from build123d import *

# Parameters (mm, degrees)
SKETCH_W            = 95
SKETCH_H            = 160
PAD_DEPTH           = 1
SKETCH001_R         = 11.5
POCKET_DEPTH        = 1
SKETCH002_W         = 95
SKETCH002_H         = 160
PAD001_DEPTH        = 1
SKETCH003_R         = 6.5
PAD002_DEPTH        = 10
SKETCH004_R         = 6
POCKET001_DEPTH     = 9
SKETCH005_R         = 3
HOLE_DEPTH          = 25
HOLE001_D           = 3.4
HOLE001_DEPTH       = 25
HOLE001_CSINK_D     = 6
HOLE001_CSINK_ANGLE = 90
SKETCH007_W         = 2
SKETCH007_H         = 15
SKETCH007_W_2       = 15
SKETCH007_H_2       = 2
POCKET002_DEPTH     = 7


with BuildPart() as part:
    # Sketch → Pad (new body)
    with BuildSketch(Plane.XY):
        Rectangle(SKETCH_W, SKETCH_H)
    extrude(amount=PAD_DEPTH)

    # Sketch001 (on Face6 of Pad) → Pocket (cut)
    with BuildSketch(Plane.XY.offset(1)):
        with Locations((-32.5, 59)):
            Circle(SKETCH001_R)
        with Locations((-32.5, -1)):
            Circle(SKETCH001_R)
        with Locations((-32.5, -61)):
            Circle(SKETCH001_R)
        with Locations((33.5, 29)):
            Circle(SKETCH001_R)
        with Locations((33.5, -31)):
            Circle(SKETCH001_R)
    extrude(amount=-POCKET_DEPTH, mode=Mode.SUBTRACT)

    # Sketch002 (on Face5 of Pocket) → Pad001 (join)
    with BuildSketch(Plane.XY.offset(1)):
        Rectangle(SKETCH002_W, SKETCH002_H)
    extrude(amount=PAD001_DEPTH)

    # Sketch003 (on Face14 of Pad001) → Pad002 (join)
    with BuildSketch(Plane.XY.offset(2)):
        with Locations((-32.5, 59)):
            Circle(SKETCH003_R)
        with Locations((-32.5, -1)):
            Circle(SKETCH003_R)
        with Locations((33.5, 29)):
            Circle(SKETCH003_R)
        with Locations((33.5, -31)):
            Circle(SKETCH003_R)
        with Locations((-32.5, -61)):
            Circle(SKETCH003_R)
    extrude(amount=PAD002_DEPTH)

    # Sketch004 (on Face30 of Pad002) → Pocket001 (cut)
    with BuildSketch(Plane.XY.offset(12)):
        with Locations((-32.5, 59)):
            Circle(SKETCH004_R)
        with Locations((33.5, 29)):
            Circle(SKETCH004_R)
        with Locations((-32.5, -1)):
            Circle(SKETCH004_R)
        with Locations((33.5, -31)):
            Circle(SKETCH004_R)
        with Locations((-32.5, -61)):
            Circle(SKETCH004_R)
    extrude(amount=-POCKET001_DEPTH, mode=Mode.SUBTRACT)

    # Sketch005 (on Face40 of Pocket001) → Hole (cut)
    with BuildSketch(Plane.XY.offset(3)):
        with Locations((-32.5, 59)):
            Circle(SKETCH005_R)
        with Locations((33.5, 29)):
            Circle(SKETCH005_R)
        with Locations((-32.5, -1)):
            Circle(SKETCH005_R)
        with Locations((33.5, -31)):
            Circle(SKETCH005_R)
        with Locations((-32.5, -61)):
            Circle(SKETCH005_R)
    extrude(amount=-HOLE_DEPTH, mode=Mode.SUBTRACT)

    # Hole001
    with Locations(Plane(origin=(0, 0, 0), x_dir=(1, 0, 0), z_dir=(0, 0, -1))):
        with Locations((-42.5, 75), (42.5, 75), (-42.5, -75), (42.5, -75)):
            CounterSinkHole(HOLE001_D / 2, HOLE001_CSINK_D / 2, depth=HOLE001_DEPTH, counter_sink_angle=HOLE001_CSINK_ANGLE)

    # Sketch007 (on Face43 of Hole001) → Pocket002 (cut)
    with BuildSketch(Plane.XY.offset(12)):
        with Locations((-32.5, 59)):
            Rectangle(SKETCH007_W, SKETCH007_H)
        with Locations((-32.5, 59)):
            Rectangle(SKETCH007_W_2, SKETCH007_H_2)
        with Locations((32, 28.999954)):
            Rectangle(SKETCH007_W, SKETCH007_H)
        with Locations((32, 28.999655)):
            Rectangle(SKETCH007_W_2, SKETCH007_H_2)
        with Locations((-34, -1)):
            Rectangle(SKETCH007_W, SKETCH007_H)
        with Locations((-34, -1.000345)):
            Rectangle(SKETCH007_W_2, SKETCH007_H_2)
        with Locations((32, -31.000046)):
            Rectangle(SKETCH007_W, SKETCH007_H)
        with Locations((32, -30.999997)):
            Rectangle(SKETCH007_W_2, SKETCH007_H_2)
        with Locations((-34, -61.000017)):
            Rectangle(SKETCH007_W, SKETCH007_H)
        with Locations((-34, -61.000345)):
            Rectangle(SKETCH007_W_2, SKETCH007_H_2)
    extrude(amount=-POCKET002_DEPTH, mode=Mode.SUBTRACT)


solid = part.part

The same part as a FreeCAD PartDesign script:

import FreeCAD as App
import Part
import Sketcher
Q = App.Units.Quantity

doc = App.newDocument("Part")
body = doc.addObject("PartDesign::Body", "Body")

sketch1 = body.newObject("Sketcher::SketchObject", "Sketch")
sketch1.AttachmentSupport = (doc.getObject("XY_Plane"), [""])
sketch1.MapMode = "FlatFace"
sketch1.addGeometry(Part.LineSegment(App.Vector(-48, 80, 0), App.Vector(-48, -80, 0)), False)
sketch1.addGeometry(Part.LineSegment(App.Vector(-48, -80, 0), App.Vector(48, -80, 0)), False)
sketch1.addGeometry(Part.LineSegment(App.Vector(48, -80, 0), App.Vector(48, 80, 0)), False)
sketch1.addGeometry(Part.LineSegment(App.Vector(48, 80, 0), App.Vector(-48, 80, 0)), False)
sketch1.addConstraint(Sketcher.Constraint("Coincident", 0, 2, 1, 1))
sketch1.addConstraint(Sketcher.Constraint("Coincident", 1, 2, 2, 1))
sketch1.addConstraint(Sketcher.Constraint("Coincident", 2, 2, 3, 1))
sketch1.addConstraint(Sketcher.Constraint("Coincident", 3, 2, 0, 1))
sketch1.addConstraint(Sketcher.Constraint("Vertical", 0))
sketch1.addConstraint(Sketcher.Constraint("Horizontal", 1))
sketch1.addConstraint(Sketcher.Constraint("Vertical", 2))
sketch1.addConstraint(Sketcher.Constraint("Horizontal", 3))
sketch1.addConstraint(Sketcher.Constraint("Symmetric", 0, 2, 2, 2, -1, 1))
sketch1.addConstraint(Sketcher.Constraint("DistanceX", 1, 1, 1, 2, Q("95 mm")))
sketch1.addConstraint(Sketcher.Constraint("DistanceY", 0, 2, 0, 1, Q("160 mm")))
pad1 = body.newObject("PartDesign::Pad", "Pad")
pad1.Profile = sketch1
pad1.Length = 1

sketch2 = body.newObject("Sketcher::SketchObject", "Sketch001")
sketch2.AttachmentSupport = (doc.getObject("XY_Plane"), [""])
sketch2.MapMode = "FlatFace"
sketch2.AttachmentOffset = App.Placement(App.Vector(0, 0, 1), App.Rotation())
sketch2.addGeometry(Part.Circle(App.Vector(-32, 59, 0), App.Vector(0, 0, 1), 12), False)
sketch2.addGeometry(Part.Circle(App.Vector(-32, -1, 0), App.Vector(0, 0, 1), 12), False)
sketch2.addGeometry(Part.Circle(App.Vector(-32, -61, 0), App.Vector(0, 0, 1), 12), False)
sketch2.addGeometry(Part.Circle(App.Vector(34, 29, 0), App.Vector(0, 0, 1), 12), False)
sketch2.addGeometry(Part.Circle(App.Vector(34, -31, 0), App.Vector(0, 0, 1), 12), False)
sketch2.addConstraint(Sketcher.Constraint("Equal", 0, 1))
sketch2.addConstraint(Sketcher.Constraint("Equal", 1, 2))
sketch2.addConstraint(Sketcher.Constraint("Equal", 2, 3))
sketch2.addConstraint(Sketcher.Constraint("Equal", 3, 4))
sketch2.addConstraint(Sketcher.Constraint("Vertical", 0, 3, 1, 3))
sketch2.addConstraint(Sketcher.Constraint("Vertical", 1, 3, 2, 3))
sketch2.addConstraint(Sketcher.Constraint("Vertical", 3, 3, 4, 3))
sketch2.addConstraint(Sketcher.Constraint("Diameter", 0, Q("23 mm")))
sketch2.addConstraint(Sketcher.Constraint("DistanceY", -1, 1, 0, 3, Q("59 mm")))
sketch2.addConstraint(Sketcher.Constraint("DistanceY", 1, 3, -1, 1, Q("1 mm")))
sketch2.addConstraint(Sketcher.Constraint("DistanceY", 2, 3, -1, 1, Q("61 mm")))
sketch2.addConstraint(Sketcher.Constraint("DistanceY", -1, 1, 3, 3, Q("29 mm")))
sketch2.addConstraint(Sketcher.Constraint("DistanceY", 4, 3, -1, 1, Q("31 mm")))
sketch2.addConstraint(Sketcher.Constraint("DistanceX", 0, 3, 3, 3, Q("66 mm")))
sketch2.addConstraint(Sketcher.Constraint("DistanceX", 0, 3, -1, 1, Q("32.5 mm")))
pocket1 = body.newObject("PartDesign::Pocket", "Pocket")
pocket1.Profile = sketch2
pocket1.Length = 1

sketch3 = body.newObject("Sketcher::SketchObject", "Sketch002")
sketch3.AttachmentSupport = (doc.getObject("XY_Plane"), [""])
sketch3.MapMode = "FlatFace"
sketch3.AttachmentOffset = App.Placement(App.Vector(0, 0, 1), App.Rotation())
sketch3.addGeometry(Part.LineSegment(App.Vector(-48, 80, 0), App.Vector(-48, -80, 0)), False)
sketch3.addGeometry(Part.LineSegment(App.Vector(-48, -80, 0), App.Vector(48, -80, 0)), False)
sketch3.addGeometry(Part.LineSegment(App.Vector(48, -80, 0), App.Vector(48, 80, 0)), False)
sketch3.addGeometry(Part.LineSegment(App.Vector(48, 80, 0), App.Vector(-48, 80, 0)), False)
sketch3.addConstraint(Sketcher.Constraint("Coincident", 0, 2, 1, 1))
sketch3.addConstraint(Sketcher.Constraint("Coincident", 1, 2, 2, 1))
sketch3.addConstraint(Sketcher.Constraint("Coincident", 2, 2, 3, 1))
sketch3.addConstraint(Sketcher.Constraint("Coincident", 3, 2, 0, 1))
sketch3.addConstraint(Sketcher.Constraint("Vertical", 0))
sketch3.addConstraint(Sketcher.Constraint("Horizontal", 1))
sketch3.addConstraint(Sketcher.Constraint("Vertical", 2))
sketch3.addConstraint(Sketcher.Constraint("Horizontal", 3))
sketch3.addConstraint(Sketcher.Constraint("Symmetric", 0, 2, 2, 2, -1, 1))
sketch3.addConstraint(Sketcher.Constraint("DistanceX", 1, 1, 1, 2, Q("95 mm")))
sketch3.addConstraint(Sketcher.Constraint("DistanceY", 0, 2, 0, 1, Q("160 mm")))
pad2 = body.newObject("PartDesign::Pad", "Pad001")
pad2.Profile = sketch3
pad2.Length = 1

sketch4 = body.newObject("Sketcher::SketchObject", "Sketch003")
sketch4.AttachmentSupport = (doc.getObject("XY_Plane"), [""])
sketch4.MapMode = "FlatFace"
sketch4.AttachmentOffset = App.Placement(App.Vector(0, 0, 2), App.Rotation())
sketch4.addGeometry(Part.Circle(App.Vector(-32, 59, 0), App.Vector(0, 0, 1), 6), False)
sketch4.addGeometry(Part.Circle(App.Vector(-32, -1, 0), App.Vector(0, 0, 1), 6), False)
sketch4.addGeometry(Part.Circle(App.Vector(34, 29, 0), App.Vector(0, 0, 1), 6), False)
sketch4.addGeometry(Part.Circle(App.Vector(34, -31, 0), App.Vector(0, 0, 1), 6), False)
sketch4.addGeometry(Part.Circle(App.Vector(-32, -61, 0), App.Vector(0, 0, 1), 6), False)
sketch4.addConstraint(Sketcher.Constraint("Equal", 0, 1))
sketch4.addConstraint(Sketcher.Constraint("Equal", 1, 2))
sketch4.addConstraint(Sketcher.Constraint("Equal", 2, 3))
sketch4.addConstraint(Sketcher.Constraint("Equal", 3, 4))
sketch4.addConstraint(Sketcher.Constraint("Vertical", 0, 3, 1, 3))
sketch4.addConstraint(Sketcher.Constraint("Vertical", 2, 3, 3, 3))
sketch4.addConstraint(Sketcher.Constraint("Vertical", 1, 3, 4, 3))
sketch4.addConstraint(Sketcher.Constraint("Diameter", 0, Q("13 mm")))
sketch4.addConstraint(Sketcher.Constraint("DistanceY", -1, 1, 0, 3, Q("59 mm")))
sketch4.addConstraint(Sketcher.Constraint("DistanceY", 1, 3, -1, 1, Q("1 mm")))
sketch4.addConstraint(Sketcher.Constraint("DistanceY", -1, 1, 2, 3, Q("29 mm")))
sketch4.addConstraint(Sketcher.Constraint("DistanceY", 3, 3, -1, 1, Q("31 mm")))
sketch4.addConstraint(Sketcher.Constraint("DistanceY", 4, 3, -1, 1, Q("61 mm")))
sketch4.addConstraint(Sketcher.Constraint("DistanceX", 0, 3, 2, 3, Q("66 mm")))
sketch4.addConstraint(Sketcher.Constraint("DistanceX", 0, 3, -1, 1, Q("32.5 mm")))
pad3 = body.newObject("PartDesign::Pad", "Pad002")
pad3.Profile = sketch4
pad3.Length = 10

sketch5 = body.newObject("Sketcher::SketchObject", "Sketch004")
sketch5.AttachmentSupport = (doc.getObject("XY_Plane"), [""])
sketch5.MapMode = "FlatFace"
sketch5.AttachmentOffset = App.Placement(App.Vector(0, 0, 12), App.Rotation())
sketch5.addGeometry(Part.Circle(App.Vector(-32, 59, 0), App.Vector(0, 0, 1), 6), False)
sketch5.addGeometry(Part.Circle(App.Vector(34, 29, 0), App.Vector(0, 0, 1), 6), False)
sketch5.addGeometry(Part.Circle(App.Vector(-32, -1, 0), App.Vector(0, 0, 1), 6), False)
sketch5.addGeometry(Part.Circle(App.Vector(34, -31, 0), App.Vector(0, 0, 1), 6), False)
sketch5.addGeometry(Part.Circle(App.Vector(-32, -61, 0), App.Vector(0, 0, 1), 6), False)
sketch5.addConstraint(Sketcher.Constraint("Equal", 0, 1))
sketch5.addConstraint(Sketcher.Constraint("Equal", 1, 2))
sketch5.addConstraint(Sketcher.Constraint("Equal", 2, 3))
sketch5.addConstraint(Sketcher.Constraint("Equal", 3, 4))
sketch5.addConstraint(Sketcher.Constraint("Vertical", 0, 3, 2, 3))
sketch5.addConstraint(Sketcher.Constraint("Vertical", 1, 3, 3, 3))
sketch5.addConstraint(Sketcher.Constraint("Vertical", 2, 3, 4, 3))
sketch5.addConstraint(Sketcher.Constraint("Diameter", 0, Q("12 mm")))
sketch5.addConstraint(Sketcher.Constraint("DistanceY", -1, 1, 0, 3, Q("59 mm")))
sketch5.addConstraint(Sketcher.Constraint("DistanceY", -1, 1, 1, 3, Q("29 mm")))
sketch5.addConstraint(Sketcher.Constraint("DistanceY", 2, 3, -1, 1, Q("1 mm")))
sketch5.addConstraint(Sketcher.Constraint("DistanceY", 3, 3, -1, 1, Q("31 mm")))
sketch5.addConstraint(Sketcher.Constraint("DistanceY", 4, 3, -1, 1, Q("61 mm")))
sketch5.addConstraint(Sketcher.Constraint("DistanceX", 0, 3, 1, 3, Q("66 mm")))
sketch5.addConstraint(Sketcher.Constraint("DistanceX", 0, 3, -1, 1, Q("32.5 mm")))
pocket2 = body.newObject("PartDesign::Pocket", "Pocket001")
pocket2.Profile = sketch5
pocket2.Length = 9

sketch6 = body.newObject("Sketcher::SketchObject", "Sketch005")
sketch6.AttachmentSupport = (doc.getObject("XY_Plane"), [""])
sketch6.MapMode = "FlatFace"
sketch6.AttachmentOffset = App.Placement(App.Vector(0, 0, 3), App.Rotation())
sketch6.addGeometry(Part.Circle(App.Vector(-32.5, 59, 0), App.Vector(0, 0, 1), 3), False)
sketch6.addGeometry(Part.Circle(App.Vector(33.5, 29, 0), App.Vector(0, 0, 1), 3), False)
sketch6.addGeometry(Part.Circle(App.Vector(-32.5, -1, 0), App.Vector(0, 0, 1), 3), False)
sketch6.addGeometry(Part.Circle(App.Vector(33.5, -31, 0), App.Vector(0, 0, 1), 3), False)
sketch6.addGeometry(Part.Circle(App.Vector(-32.5, -61, 0), App.Vector(0, 0, 1), 3), False)
sketch6.addConstraint(Sketcher.Constraint("Equal", 0, 1))
sketch6.addConstraint(Sketcher.Constraint("Equal", 1, 2))
sketch6.addConstraint(Sketcher.Constraint("Equal", 2, 3))
sketch6.addConstraint(Sketcher.Constraint("Equal", 3, 4))
sketch6.addConstraint(Sketcher.Constraint("Vertical", 0, 3, 2, 3))
sketch6.addConstraint(Sketcher.Constraint("Vertical", 1, 3, 3, 3))
sketch6.addConstraint(Sketcher.Constraint("Vertical", 2, 3, 4, 3))
sketch6.addConstraint(Sketcher.Constraint("Diameter", 0, Q("6 mm")))
sketch6.addConstraint(Sketcher.Constraint("DistanceY", -1, 1, 0, 3, Q("59 mm")))
sketch6.addConstraint(Sketcher.Constraint("DistanceY", -1, 1, 1, 3, Q("29 mm")))
sketch6.addConstraint(Sketcher.Constraint("DistanceY", 2, 3, -1, 1, Q("1 mm")))
sketch6.addConstraint(Sketcher.Constraint("DistanceY", 3, 3, -1, 1, Q("31 mm")))
sketch6.addConstraint(Sketcher.Constraint("DistanceY", 4, 3, -1, 1, Q("61 mm")))
sketch6.addConstraint(Sketcher.Constraint("DistanceX", 0, 3, 1, 3, Q("66 mm")))
sketch6.addConstraint(Sketcher.Constraint("DistanceX", 0, 3, -1, 1, Q("32.5 mm")))
pocket3 = body.newObject("PartDesign::Pocket", "Pocket002")
pocket3.Profile = sketch6
pocket3.Length = 25

sketch7 = body.newObject("Sketcher::SketchObject", "Sketch006")
sketch7.AttachmentSupport = (doc.getObject("XY_Plane"), [""])
sketch7.MapMode = "FlatFace"
sketch7.addGeometry(Part.Circle(App.Vector(-42.5, -75, 0), App.Vector(0, 0, 1), 1.7), False)
sketch7.addGeometry(Part.Circle(App.Vector(42.5, -75, 0), App.Vector(0, 0, 1), 1.7), False)
sketch7.addGeometry(Part.Circle(App.Vector(-42.5, 75, 0), App.Vector(0, 0, 1), 1.7), False)
sketch7.addGeometry(Part.Circle(App.Vector(42.5, 75, 0), App.Vector(0, 0, 1), 1.7), False)
sketch7.addConstraint(Sketcher.Constraint("Equal", 0, 1))
sketch7.addConstraint(Sketcher.Constraint("Equal", 1, 2))
sketch7.addConstraint(Sketcher.Constraint("Equal", 2, 3))
sketch7.addConstraint(Sketcher.Constraint("Symmetric", 1, 3, 2, 3, -1, 1))
sketch7.addConstraint(Sketcher.Constraint("Symmetric", 0, 3, 3, 3, -1, 1))
sketch7.addConstraint(Sketcher.Constraint("Symmetric", 0, 3, 1, 3, -2))
sketch7.addConstraint(Sketcher.Constraint("Diameter", 0, Q("3.4 mm")))
sketch7.addConstraint(Sketcher.Constraint("DistanceY", 0, 3, -1, 1, Q("75 mm")))
sketch7.addConstraint(Sketcher.Constraint("DistanceX", 0, 3, 1, 3, Q("85 mm")))
doc.recompute()
hole = body.newObject("PartDesign::Hole", "Hole")
hole.Profile = sketch7
hole.ThreadType = "None"
hole.Diameter = 3.4
hole.DepthType = "Dimension"
hole.Depth = 25
hole.DrillPoint = "Flat"
hole.HoleCutType = "Countersink"
hole.HoleCutDiameter = 6
hole.HoleCutCountersinkAngle = 90
hole.Reversed = True

sketch8 = body.newObject("Sketcher::SketchObject", "Sketch007")
sketch8.AttachmentSupport = (doc.getObject("XY_Plane"), [""])
sketch8.MapMode = "FlatFace"
sketch8.AttachmentOffset = App.Placement(App.Vector(0, 0, 12), App.Rotation())
sketch8.addGeometry(Part.LineSegment(App.Vector(-33.5, 58, 0), App.Vector(-33.5, 51.5, 0)), False)
sketch8.addGeometry(Part.LineSegment(App.Vector(-33.5, 51.5, 0), App.Vector(-31.5, 51.5, 0)), False)
sketch8.addGeometry(Part.LineSegment(App.Vector(-31.5, 51.5, 0), App.Vector(-31.5, 58, 0)), False)
sketch8.addGeometry(Part.LineSegment(App.Vector(-31.5, 58, 0), App.Vector(-25, 58, 0)), False)
sketch8.addGeometry(Part.LineSegment(App.Vector(-25, 58, 0), App.Vector(-25, 60, 0)), False)
sketch8.addGeometry(Part.LineSegment(App.Vector(-25, 60, 0), App.Vector(-31.5, 60, 0)), False)
sketch8.addGeometry(Part.LineSegment(App.Vector(-31.5, 60, 0), App.Vector(-31.5, 66.5, 0)), False)
sketch8.addGeometry(Part.LineSegment(App.Vector(-31.5, 66.5, 0), App.Vector(-33.5, 66.5, 0)), False)
sketch8.addGeometry(Part.LineSegment(App.Vector(-33.5, 66.5, 0), App.Vector(-33.5, 60, 0)), False)
sketch8.addGeometry(Part.LineSegment(App.Vector(-33.5, 60, 0), App.Vector(-40, 60, 0)), False)
sketch8.addGeometry(Part.LineSegment(App.Vector(-40, 60, 0), App.Vector(-40, 58, 0)), False)
sketch8.addGeometry(Part.LineSegment(App.Vector(-40, 58, 0), App.Vector(-33.5, 58, 0)), False)
sketch8.addGeometry(Part.LineSegment(App.Vector(31, 27.999655, 0), App.Vector(31, 21.499954, 0)), False)
sketch8.addGeometry(Part.LineSegment(App.Vector(31, 21.499954, 0), App.Vector(33, 21.499954, 0)), False)
sketch8.addGeometry(Part.LineSegment(App.Vector(33, 21.499954, 0), App.Vector(33, 27.999655, 0)), False)
sketch8.addGeometry(Part.LineSegment(App.Vector(33, 27.999655, 0), App.Vector(39.5, 27.999655, 0)), False)
sketch8.addGeometry(Part.LineSegment(App.Vector(39.5, 27.999655, 0), App.Vector(39.5, 29.999655, 0)), False)
sketch8.addGeometry(Part.LineSegment(App.Vector(39.5, 29.999655, 0), App.Vector(33, 29.999655, 0)), False)
sketch8.addGeometry(Part.LineSegment(App.Vector(33, 29.999655, 0), App.Vector(33, 36.499954, 0)), False)
sketch8.addGeometry(Part.LineSegment(App.Vector(33, 36.499954, 0), App.Vector(31, 36.499954, 0)), False)
sketch8.addGeometry(Part.LineSegment(App.Vector(31, 36.499954, 0), App.Vector(31, 29.999655, 0)), False)
sketch8.addGeometry(Part.LineSegment(App.Vector(31, 29.999655, 0), App.Vector(24.5, 29.999655, 0)), False)
sketch8.addGeometry(Part.LineSegment(App.Vector(24.5, 29.999655, 0), App.Vector(24.5, 27.999655, 0)), False)
sketch8.addGeometry(Part.LineSegment(App.Vector(24.5, 27.999655, 0), App.Vector(31, 27.999655, 0)), False)
sketch8.addGeometry(Part.LineSegment(App.Vector(-35, -2.000345, 0), App.Vector(-35, -8.5, 0)), False)
sketch8.addGeometry(Part.LineSegment(App.Vector(-35, -8.5, 0), App.Vector(-33, -8.5, 0)), False)
sketch8.addGeometry(Part.LineSegment(App.Vector(-33, -8.5, 0), App.Vector(-33, -2.000345, 0)), False)
sketch8.addGeometry(Part.LineSegment(App.Vector(-33, -2.000345, 0), App.Vector(-26.5, -2.000345, 0)), False)
sketch8.addGeometry(Part.LineSegment(App.Vector(-26.5, -2.000345, 0), App.Vector(-26.5, -0.000345, 0)), False)
sketch8.addGeometry(Part.LineSegment(App.Vector(-26.5, -0.000345, 0), App.Vector(-33, -0.000345, 0)), False)
sketch8.addGeometry(Part.LineSegment(App.Vector(-33, -0.000345, 0), App.Vector(-33, 6.5, 0)), False)
sketch8.addGeometry(Part.LineSegment(App.Vector(-33, 6.5, 0), App.Vector(-35, 6.5, 0)), False)
sketch8.addGeometry(Part.LineSegment(App.Vector(-35, 6.5, 0), App.Vector(-35, -0.000345, 0)), False)
sketch8.addGeometry(Part.LineSegment(App.Vector(-35, -0.000345, 0), App.Vector(-41.5, -0.000345, 0)), False)
sketch8.addGeometry(Part.LineSegment(App.Vector(-41.5, -0.000345, 0), App.Vector(-41.5, -2.000345, 0)), False)
sketch8.addGeometry(Part.LineSegment(App.Vector(-41.5, -2.000345, 0), App.Vector(-35, -2.000345, 0)), False)
sketch8.addGeometry(Part.LineSegment(App.Vector(31, -31.999997, 0), App.Vector(31, -38.500046, 0)), False)
sketch8.addGeometry(Part.LineSegment(App.Vector(31, -38.500046, 0), App.Vector(33, -38.500046, 0)), False)
sketch8.addGeometry(Part.LineSegment(App.Vector(33, -38.500046, 0), App.Vector(33, -31.999997, 0)), False)
sketch8.addGeometry(Part.LineSegment(App.Vector(33, -31.999997, 0), App.Vector(39.5, -31.999997, 0)), False)
sketch8.addGeometry(Part.LineSegment(App.Vector(39.5, -31.999997, 0), App.Vector(39.5, -29.999997, 0)), False)
sketch8.addGeometry(Part.LineSegment(App.Vector(39.5, -29.999997, 0), App.Vector(33, -29.999997, 0)), False)
sketch8.addGeometry(Part.LineSegment(App.Vector(33, -29.999997, 0), App.Vector(33, -23.500046, 0)), False)
sketch8.addGeometry(Part.LineSegment(App.Vector(33, -23.500046, 0), App.Vector(31, -23.500046, 0)), False)
sketch8.addGeometry(Part.LineSegment(App.Vector(31, -23.500046, 0), App.Vector(31, -29.999997, 0)), False)
sketch8.addGeometry(Part.LineSegment(App.Vector(31, -29.999997, 0), App.Vector(24.5, -29.999997, 0)), False)
sketch8.addGeometry(Part.LineSegment(App.Vector(24.5, -29.999997, 0), App.Vector(24.5, -31.999997, 0)), False)
sketch8.addGeometry(Part.LineSegment(App.Vector(24.5, -31.999997, 0), App.Vector(31, -31.999997, 0)), False)
sketch8.addGeometry(Part.LineSegment(App.Vector(-35, -62.000345, 0), App.Vector(-35, -68.500017, 0)), False)
sketch8.addGeometry(Part.LineSegment(App.Vector(-35, -68.500017, 0), App.Vector(-33, -68.500017, 0)), False)
sketch8.addGeometry(Part.LineSegment(App.Vector(-33, -68.500017, 0), App.Vector(-33, -62.000345, 0)), False)
sketch8.addGeometry(Part.LineSegment(App.Vector(-33, -62.000345, 0), App.Vector(-26.5, -62.000345, 0)), False)
sketch8.addGeometry(Part.LineSegment(App.Vector(-26.5, -62.000345, 0), App.Vector(-26.5, -60.000345, 0)), False)
sketch8.addGeometry(Part.LineSegment(App.Vector(-26.5, -60.000345, 0), App.Vector(-33, -60.000345, 0)), False)
sketch8.addGeometry(Part.LineSegment(App.Vector(-33, -60.000345, 0), App.Vector(-33, -53.500017, 0)), False)
sketch8.addGeometry(Part.LineSegment(App.Vector(-33, -53.500017, 0), App.Vector(-35, -53.500017, 0)), False)
sketch8.addGeometry(Part.LineSegment(App.Vector(-35, -53.500017, 0), App.Vector(-35, -60.000345, 0)), False)
sketch8.addGeometry(Part.LineSegment(App.Vector(-35, -60.000345, 0), App.Vector(-41.5, -60.000345, 0)), False)
sketch8.addGeometry(Part.LineSegment(App.Vector(-41.5, -60.000345, 0), App.Vector(-41.5, -62.000345, 0)), False)
sketch8.addGeometry(Part.LineSegment(App.Vector(-41.5, -62.000345, 0), App.Vector(-35, -62.000345, 0)), False)
sketch8.addConstraint(Sketcher.Constraint("Coincident", 0, 2, 1, 1))
sketch8.addConstraint(Sketcher.Constraint("Coincident", 1, 2, 2, 1))
sketch8.addConstraint(Sketcher.Constraint("Coincident", 2, 2, 3, 1))
sketch8.addConstraint(Sketcher.Constraint("Coincident", 3, 2, 4, 1))
sketch8.addConstraint(Sketcher.Constraint("Coincident", 4, 2, 5, 1))
sketch8.addConstraint(Sketcher.Constraint("Coincident", 5, 2, 6, 1))
sketch8.addConstraint(Sketcher.Constraint("Coincident", 6, 2, 7, 1))
sketch8.addConstraint(Sketcher.Constraint("Coincident", 7, 2, 8, 1))
sketch8.addConstraint(Sketcher.Constraint("Coincident", 8, 2, 9, 1))
sketch8.addConstraint(Sketcher.Constraint("Coincident", 9, 2, 10, 1))
sketch8.addConstraint(Sketcher.Constraint("Coincident", 10, 2, 11, 1))
sketch8.addConstraint(Sketcher.Constraint("Coincident", 11, 2, 0, 1))
sketch8.addConstraint(Sketcher.Constraint("Coincident", 12, 2, 13, 1))
sketch8.addConstraint(Sketcher.Constraint("Coincident", 13, 2, 14, 1))
sketch8.addConstraint(Sketcher.Constraint("Coincident", 14, 2, 15, 1))
sketch8.addConstraint(Sketcher.Constraint("Coincident", 15, 2, 16, 1))
sketch8.addConstraint(Sketcher.Constraint("Coincident", 16, 2, 17, 1))
sketch8.addConstraint(Sketcher.Constraint("Coincident", 17, 2, 18, 1))
sketch8.addConstraint(Sketcher.Constraint("Coincident", 18, 2, 19, 1))
sketch8.addConstraint(Sketcher.Constraint("Coincident", 19, 2, 20, 1))
sketch8.addConstraint(Sketcher.Constraint("Coincident", 20, 2, 21, 1))
sketch8.addConstraint(Sketcher.Constraint("Coincident", 21, 2, 22, 1))
sketch8.addConstraint(Sketcher.Constraint("Coincident", 22, 2, 23, 1))
sketch8.addConstraint(Sketcher.Constraint("Coincident", 23, 2, 12, 1))
sketch8.addConstraint(Sketcher.Constraint("Coincident", 24, 2, 25, 1))
sketch8.addConstraint(Sketcher.Constraint("Coincident", 25, 2, 26, 1))
sketch8.addConstraint(Sketcher.Constraint("Coincident", 26, 2, 27, 1))
sketch8.addConstraint(Sketcher.Constraint("Coincident", 27, 2, 28, 1))
sketch8.addConstraint(Sketcher.Constraint("Coincident", 28, 2, 29, 1))
sketch8.addConstraint(Sketcher.Constraint("Coincident", 29, 2, 30, 1))
sketch8.addConstraint(Sketcher.Constraint("Coincident", 30, 2, 31, 1))
sketch8.addConstraint(Sketcher.Constraint("Coincident", 31, 2, 32, 1))
sketch8.addConstraint(Sketcher.Constraint("Coincident", 32, 2, 33, 1))
sketch8.addConstraint(Sketcher.Constraint("Coincident", 33, 2, 34, 1))
sketch8.addConstraint(Sketcher.Constraint("Coincident", 34, 2, 35, 1))
sketch8.addConstraint(Sketcher.Constraint("Coincident", 35, 2, 24, 1))
sketch8.addConstraint(Sketcher.Constraint("Coincident", 36, 2, 37, 1))
sketch8.addConstraint(Sketcher.Constraint("Coincident", 37, 2, 38, 1))
sketch8.addConstraint(Sketcher.Constraint("Coincident", 38, 2, 39, 1))
sketch8.addConstraint(Sketcher.Constraint("Coincident", 39, 2, 40, 1))
sketch8.addConstraint(Sketcher.Constraint("Coincident", 40, 2, 41, 1))
sketch8.addConstraint(Sketcher.Constraint("Coincident", 41, 2, 42, 1))
sketch8.addConstraint(Sketcher.Constraint("Coincident", 42, 2, 43, 1))
sketch8.addConstraint(Sketcher.Constraint("Coincident", 43, 2, 44, 1))
sketch8.addConstraint(Sketcher.Constraint("Coincident", 44, 2, 45, 1))
sketch8.addConstraint(Sketcher.Constraint("Coincident", 45, 2, 46, 1))
sketch8.addConstraint(Sketcher.Constraint("Coincident", 46, 2, 47, 1))
sketch8.addConstraint(Sketcher.Constraint("Coincident", 47, 2, 36, 1))
sketch8.addConstraint(Sketcher.Constraint("Coincident", 48, 2, 49, 1))
sketch8.addConstraint(Sketcher.Constraint("Coincident", 49, 2, 50, 1))
sketch8.addConstraint(Sketcher.Constraint("Coincident", 50, 2, 51, 1))
sketch8.addConstraint(Sketcher.Constraint("Coincident", 51, 2, 52, 1))
sketch8.addConstraint(Sketcher.Constraint("Coincident", 52, 2, 53, 1))
sketch8.addConstraint(Sketcher.Constraint("Coincident", 53, 2, 54, 1))
sketch8.addConstraint(Sketcher.Constraint("Coincident", 54, 2, 55, 1))
sketch8.addConstraint(Sketcher.Constraint("Coincident", 55, 2, 56, 1))
sketch8.addConstraint(Sketcher.Constraint("Coincident", 56, 2, 57, 1))
sketch8.addConstraint(Sketcher.Constraint("Coincident", 57, 2, 58, 1))
sketch8.addConstraint(Sketcher.Constraint("Coincident", 58, 2, 59, 1))
sketch8.addConstraint(Sketcher.Constraint("Coincident", 59, 2, 48, 1))
sketch8.addConstraint(Sketcher.Constraint("Vertical", 0))
sketch8.addConstraint(Sketcher.Constraint("Horizontal", 1))
sketch8.addConstraint(Sketcher.Constraint("Vertical", 2))
sketch8.addConstraint(Sketcher.Constraint("Horizontal", 3))
sketch8.addConstraint(Sketcher.Constraint("Vertical", 4))
sketch8.addConstraint(Sketcher.Constraint("Horizontal", 5))
sketch8.addConstraint(Sketcher.Constraint("Vertical", 6))
sketch8.addConstraint(Sketcher.Constraint("Horizontal", 7))
sketch8.addConstraint(Sketcher.Constraint("Vertical", 8))
sketch8.addConstraint(Sketcher.Constraint("Horizontal", 9))
sketch8.addConstraint(Sketcher.Constraint("Vertical", 10))
sketch8.addConstraint(Sketcher.Constraint("Horizontal", 11))
sketch8.addConstraint(Sketcher.Constraint("Vertical", 12))
sketch8.addConstraint(Sketcher.Constraint("Horizontal", 13))
sketch8.addConstraint(Sketcher.Constraint("Vertical", 14))
sketch8.addConstraint(Sketcher.Constraint("Horizontal", 15))
sketch8.addConstraint(Sketcher.Constraint("Vertical", 16))
sketch8.addConstraint(Sketcher.Constraint("Horizontal", 17))
sketch8.addConstraint(Sketcher.Constraint("Vertical", 18))
sketch8.addConstraint(Sketcher.Constraint("Horizontal", 19))
sketch8.addConstraint(Sketcher.Constraint("Vertical", 20))
sketch8.addConstraint(Sketcher.Constraint("Horizontal", 21))
sketch8.addConstraint(Sketcher.Constraint("Vertical", 22))
sketch8.addConstraint(Sketcher.Constraint("Horizontal", 23))
sketch8.addConstraint(Sketcher.Constraint("Vertical", 24))
sketch8.addConstraint(Sketcher.Constraint("Horizontal", 25))
sketch8.addConstraint(Sketcher.Constraint("Vertical", 26))
sketch8.addConstraint(Sketcher.Constraint("Horizontal", 27))
sketch8.addConstraint(Sketcher.Constraint("Vertical", 28))
sketch8.addConstraint(Sketcher.Constraint("Horizontal", 29))
sketch8.addConstraint(Sketcher.Constraint("Vertical", 30))
sketch8.addConstraint(Sketcher.Constraint("Horizontal", 31))
sketch8.addConstraint(Sketcher.Constraint("Vertical", 32))
sketch8.addConstraint(Sketcher.Constraint("Horizontal", 33))
sketch8.addConstraint(Sketcher.Constraint("Vertical", 34))
sketch8.addConstraint(Sketcher.Constraint("Horizontal", 35))
sketch8.addConstraint(Sketcher.Constraint("Vertical", 36))
sketch8.addConstraint(Sketcher.Constraint("Horizontal", 37))
sketch8.addConstraint(Sketcher.Constraint("Vertical", 38))
sketch8.addConstraint(Sketcher.Constraint("Horizontal", 39))
sketch8.addConstraint(Sketcher.Constraint("Vertical", 40))
sketch8.addConstraint(Sketcher.Constraint("Horizontal", 41))
sketch8.addConstraint(Sketcher.Constraint("Vertical", 42))
sketch8.addConstraint(Sketcher.Constraint("Horizontal", 43))
sketch8.addConstraint(Sketcher.Constraint("Vertical", 44))
sketch8.addConstraint(Sketcher.Constraint("Horizontal", 45))
sketch8.addConstraint(Sketcher.Constraint("Vertical", 46))
sketch8.addConstraint(Sketcher.Constraint("Horizontal", 47))
sketch8.addConstraint(Sketcher.Constraint("Vertical", 48))
sketch8.addConstraint(Sketcher.Constraint("Horizontal", 49))
sketch8.addConstraint(Sketcher.Constraint("Vertical", 50))
sketch8.addConstraint(Sketcher.Constraint("Horizontal", 51))
sketch8.addConstraint(Sketcher.Constraint("Vertical", 52))
sketch8.addConstraint(Sketcher.Constraint("Horizontal", 53))
sketch8.addConstraint(Sketcher.Constraint("Vertical", 54))
sketch8.addConstraint(Sketcher.Constraint("Horizontal", 55))
sketch8.addConstraint(Sketcher.Constraint("Vertical", 56))
sketch8.addConstraint(Sketcher.Constraint("Horizontal", 57))
sketch8.addConstraint(Sketcher.Constraint("Vertical", 58))
sketch8.addConstraint(Sketcher.Constraint("Horizontal", 59))
sketch8.addConstraint(Sketcher.Constraint("Horizontal", 5, 2, 8, 2))
sketch8.addConstraint(Sketcher.Constraint("Horizontal", 3, 2, 10, 2))
sketch8.addConstraint(Sketcher.Constraint("Horizontal", 17, 2, 20, 2))
sketch8.addConstraint(Sketcher.Constraint("Horizontal", 15, 2, 22, 2))
sketch8.addConstraint(Sketcher.Constraint("Horizontal", 29, 2, 32, 2))
sketch8.addConstraint(Sketcher.Constraint("Horizontal", 27, 2, 34, 2))
sketch8.addConstraint(Sketcher.Constraint("Horizontal", 41, 2, 44, 2))
sketch8.addConstraint(Sketcher.Constraint("Horizontal", 39, 2, 46, 2))
sketch8.addConstraint(Sketcher.Constraint("Horizontal", 53, 2, 56, 2))
sketch8.addConstraint(Sketcher.Constraint("Horizontal", 51, 2, 58, 2))
sketch8.addConstraint(Sketcher.Constraint("Vertical", 2, 2, 5, 2))
sketch8.addConstraint(Sketcher.Constraint("Vertical", 0, 2, 7, 2))
sketch8.addConstraint(Sketcher.Constraint("Vertical", 14, 2, 17, 2))
sketch8.addConstraint(Sketcher.Constraint("Vertical", 12, 2, 19, 2))
sketch8.addConstraint(Sketcher.Constraint("Vertical", 26, 2, 29, 2))
sketch8.addConstraint(Sketcher.Constraint("Vertical", 24, 2, 31, 2))
sketch8.addConstraint(Sketcher.Constraint("Vertical", 23, 2, 36, 2))
sketch8.addConstraint(Sketcher.Constraint("Vertical", 18, 2, 37, 2))
sketch8.addConstraint(Sketcher.Constraint("Vertical", 16, 2, 39, 2))
sketch8.addConstraint(Sketcher.Constraint("Vertical", 38, 2, 41, 2))
sketch8.addConstraint(Sketcher.Constraint("Vertical", 36, 2, 43, 2))
sketch8.addConstraint(Sketcher.Constraint("Vertical", 22, 2, 45, 2))
sketch8.addConstraint(Sketcher.Constraint("Vertical", 35, 2, 48, 2))
sketch8.addConstraint(Sketcher.Constraint("Vertical", 30, 2, 49, 2))
sketch8.addConstraint(Sketcher.Constraint("Vertical", 28, 2, 51, 2))
sketch8.addConstraint(Sketcher.Constraint("Vertical", 50, 2, 53, 2))
sketch8.addConstraint(Sketcher.Constraint("Vertical", 48, 2, 55, 2))
sketch8.addConstraint(Sketcher.Constraint("Vertical", 34, 2, 57, 2))
sketch8.addConstraint(Sketcher.Constraint("Equal", 5, 9))
sketch8.addConstraint(Sketcher.Constraint("Equal", 7, 13))
sketch8.addConstraint(Sketcher.Constraint("Equal", 11, 15))
sketch8.addConstraint(Sketcher.Constraint("Equal", 17, 21))
sketch8.addConstraint(Sketcher.Constraint("Equal", 19, 25))
sketch8.addConstraint(Sketcher.Constraint("Equal", 23, 27))
sketch8.addConstraint(Sketcher.Constraint("Equal", 29, 33))
sketch8.addConstraint(Sketcher.Constraint("Equal", 59, 0))
sketch8.addConstraint(Sketcher.Constraint("Equal", 55, 4))
sketch8.addConstraint(Sketcher.Constraint("Equal", 2, 6))
sketch8.addConstraint(Sketcher.Constraint("Equal", 10, 16))
sketch8.addConstraint(Sketcher.Constraint("Equal", 22, 28))
sketch8.addConstraint(Sketcher.Constraint("Equal", 34, 40))
sketch8.addConstraint(Sketcher.Constraint("Equal", 46, 52))
sketch8.addConstraint(Sketcher.Constraint("DistanceX", 1, 1, 1, 2, Q("2 mm")))
sketch8.addConstraint(Sketcher.Constraint("DistanceX", 3, 1, 3, 2, Q("6.5 mm")))
sketch8.addConstraint(Sketcher.Constraint("DistanceY", -1, 1, 2, 2, Q("58 mm")))
sketch8.addConstraint(Sketcher.Constraint("DistanceX", 3, 2, -1, 1, Q("25 mm")))
sketch8.addConstraint(Sketcher.Constraint("DistanceX", -1, 1, 12, 2, Q("31 mm")))
sketch8.addConstraint(Sketcher.Constraint("DistanceX", 24, 2, -1, 1, Q("35 mm")))
sketch8.addConstraint(Sketcher.Constraint("DistanceY", 13, 2, 18, 2, Q("15 mm")))
sketch8.addConstraint(Sketcher.Constraint("DistanceY", 24, 2, 0, 2, Q("60 mm")))
sketch8.addConstraint(Sketcher.Constraint("DistanceY", 25, 2, 30, 2, Q("15 mm")))
sketch8.addConstraint(Sketcher.Constraint("DistanceY", 36, 2, 12, 2, Q("60 mm")))
sketch8.addConstraint(Sketcher.Constraint("DistanceY", 37, 2, 42, 2, Q("15 mm")))
sketch8.addConstraint(Sketcher.Constraint("DistanceY", 50, 2, 26, 2, Q("60 mm")))
sketch8.addConstraint(Sketcher.Constraint("DistanceY", 49, 2, 54, 2, Q("15 mm")))
sketch8.addConstraint(Sketcher.Constraint("DistanceY", 12, 2, 12, 1, Q("6.499701 mm")))
sketch8.addConstraint(Sketcher.Constraint("DistanceY", 36, 2, 36, 1, Q("6.500049 mm")))
sketch8.addConstraint(Sketcher.Constraint("DistanceY", 48, 2, 48, 1, Q("6.499672 mm")))
sketch8.addConstraint(Sketcher.Constraint("DistanceY", 24, 2, 24, 1, Q("6.499655 mm")))
sketch8.addConstraint(Sketcher.Constraint("DistanceY", -1, 1, 12, 2, Q("21.499954 mm")))
pocket4 = body.newObject("PartDesign::Pocket", "Pocket003")
pocket4.Profile = sketch8
pocket4.Length = 7

doc.recompute()
